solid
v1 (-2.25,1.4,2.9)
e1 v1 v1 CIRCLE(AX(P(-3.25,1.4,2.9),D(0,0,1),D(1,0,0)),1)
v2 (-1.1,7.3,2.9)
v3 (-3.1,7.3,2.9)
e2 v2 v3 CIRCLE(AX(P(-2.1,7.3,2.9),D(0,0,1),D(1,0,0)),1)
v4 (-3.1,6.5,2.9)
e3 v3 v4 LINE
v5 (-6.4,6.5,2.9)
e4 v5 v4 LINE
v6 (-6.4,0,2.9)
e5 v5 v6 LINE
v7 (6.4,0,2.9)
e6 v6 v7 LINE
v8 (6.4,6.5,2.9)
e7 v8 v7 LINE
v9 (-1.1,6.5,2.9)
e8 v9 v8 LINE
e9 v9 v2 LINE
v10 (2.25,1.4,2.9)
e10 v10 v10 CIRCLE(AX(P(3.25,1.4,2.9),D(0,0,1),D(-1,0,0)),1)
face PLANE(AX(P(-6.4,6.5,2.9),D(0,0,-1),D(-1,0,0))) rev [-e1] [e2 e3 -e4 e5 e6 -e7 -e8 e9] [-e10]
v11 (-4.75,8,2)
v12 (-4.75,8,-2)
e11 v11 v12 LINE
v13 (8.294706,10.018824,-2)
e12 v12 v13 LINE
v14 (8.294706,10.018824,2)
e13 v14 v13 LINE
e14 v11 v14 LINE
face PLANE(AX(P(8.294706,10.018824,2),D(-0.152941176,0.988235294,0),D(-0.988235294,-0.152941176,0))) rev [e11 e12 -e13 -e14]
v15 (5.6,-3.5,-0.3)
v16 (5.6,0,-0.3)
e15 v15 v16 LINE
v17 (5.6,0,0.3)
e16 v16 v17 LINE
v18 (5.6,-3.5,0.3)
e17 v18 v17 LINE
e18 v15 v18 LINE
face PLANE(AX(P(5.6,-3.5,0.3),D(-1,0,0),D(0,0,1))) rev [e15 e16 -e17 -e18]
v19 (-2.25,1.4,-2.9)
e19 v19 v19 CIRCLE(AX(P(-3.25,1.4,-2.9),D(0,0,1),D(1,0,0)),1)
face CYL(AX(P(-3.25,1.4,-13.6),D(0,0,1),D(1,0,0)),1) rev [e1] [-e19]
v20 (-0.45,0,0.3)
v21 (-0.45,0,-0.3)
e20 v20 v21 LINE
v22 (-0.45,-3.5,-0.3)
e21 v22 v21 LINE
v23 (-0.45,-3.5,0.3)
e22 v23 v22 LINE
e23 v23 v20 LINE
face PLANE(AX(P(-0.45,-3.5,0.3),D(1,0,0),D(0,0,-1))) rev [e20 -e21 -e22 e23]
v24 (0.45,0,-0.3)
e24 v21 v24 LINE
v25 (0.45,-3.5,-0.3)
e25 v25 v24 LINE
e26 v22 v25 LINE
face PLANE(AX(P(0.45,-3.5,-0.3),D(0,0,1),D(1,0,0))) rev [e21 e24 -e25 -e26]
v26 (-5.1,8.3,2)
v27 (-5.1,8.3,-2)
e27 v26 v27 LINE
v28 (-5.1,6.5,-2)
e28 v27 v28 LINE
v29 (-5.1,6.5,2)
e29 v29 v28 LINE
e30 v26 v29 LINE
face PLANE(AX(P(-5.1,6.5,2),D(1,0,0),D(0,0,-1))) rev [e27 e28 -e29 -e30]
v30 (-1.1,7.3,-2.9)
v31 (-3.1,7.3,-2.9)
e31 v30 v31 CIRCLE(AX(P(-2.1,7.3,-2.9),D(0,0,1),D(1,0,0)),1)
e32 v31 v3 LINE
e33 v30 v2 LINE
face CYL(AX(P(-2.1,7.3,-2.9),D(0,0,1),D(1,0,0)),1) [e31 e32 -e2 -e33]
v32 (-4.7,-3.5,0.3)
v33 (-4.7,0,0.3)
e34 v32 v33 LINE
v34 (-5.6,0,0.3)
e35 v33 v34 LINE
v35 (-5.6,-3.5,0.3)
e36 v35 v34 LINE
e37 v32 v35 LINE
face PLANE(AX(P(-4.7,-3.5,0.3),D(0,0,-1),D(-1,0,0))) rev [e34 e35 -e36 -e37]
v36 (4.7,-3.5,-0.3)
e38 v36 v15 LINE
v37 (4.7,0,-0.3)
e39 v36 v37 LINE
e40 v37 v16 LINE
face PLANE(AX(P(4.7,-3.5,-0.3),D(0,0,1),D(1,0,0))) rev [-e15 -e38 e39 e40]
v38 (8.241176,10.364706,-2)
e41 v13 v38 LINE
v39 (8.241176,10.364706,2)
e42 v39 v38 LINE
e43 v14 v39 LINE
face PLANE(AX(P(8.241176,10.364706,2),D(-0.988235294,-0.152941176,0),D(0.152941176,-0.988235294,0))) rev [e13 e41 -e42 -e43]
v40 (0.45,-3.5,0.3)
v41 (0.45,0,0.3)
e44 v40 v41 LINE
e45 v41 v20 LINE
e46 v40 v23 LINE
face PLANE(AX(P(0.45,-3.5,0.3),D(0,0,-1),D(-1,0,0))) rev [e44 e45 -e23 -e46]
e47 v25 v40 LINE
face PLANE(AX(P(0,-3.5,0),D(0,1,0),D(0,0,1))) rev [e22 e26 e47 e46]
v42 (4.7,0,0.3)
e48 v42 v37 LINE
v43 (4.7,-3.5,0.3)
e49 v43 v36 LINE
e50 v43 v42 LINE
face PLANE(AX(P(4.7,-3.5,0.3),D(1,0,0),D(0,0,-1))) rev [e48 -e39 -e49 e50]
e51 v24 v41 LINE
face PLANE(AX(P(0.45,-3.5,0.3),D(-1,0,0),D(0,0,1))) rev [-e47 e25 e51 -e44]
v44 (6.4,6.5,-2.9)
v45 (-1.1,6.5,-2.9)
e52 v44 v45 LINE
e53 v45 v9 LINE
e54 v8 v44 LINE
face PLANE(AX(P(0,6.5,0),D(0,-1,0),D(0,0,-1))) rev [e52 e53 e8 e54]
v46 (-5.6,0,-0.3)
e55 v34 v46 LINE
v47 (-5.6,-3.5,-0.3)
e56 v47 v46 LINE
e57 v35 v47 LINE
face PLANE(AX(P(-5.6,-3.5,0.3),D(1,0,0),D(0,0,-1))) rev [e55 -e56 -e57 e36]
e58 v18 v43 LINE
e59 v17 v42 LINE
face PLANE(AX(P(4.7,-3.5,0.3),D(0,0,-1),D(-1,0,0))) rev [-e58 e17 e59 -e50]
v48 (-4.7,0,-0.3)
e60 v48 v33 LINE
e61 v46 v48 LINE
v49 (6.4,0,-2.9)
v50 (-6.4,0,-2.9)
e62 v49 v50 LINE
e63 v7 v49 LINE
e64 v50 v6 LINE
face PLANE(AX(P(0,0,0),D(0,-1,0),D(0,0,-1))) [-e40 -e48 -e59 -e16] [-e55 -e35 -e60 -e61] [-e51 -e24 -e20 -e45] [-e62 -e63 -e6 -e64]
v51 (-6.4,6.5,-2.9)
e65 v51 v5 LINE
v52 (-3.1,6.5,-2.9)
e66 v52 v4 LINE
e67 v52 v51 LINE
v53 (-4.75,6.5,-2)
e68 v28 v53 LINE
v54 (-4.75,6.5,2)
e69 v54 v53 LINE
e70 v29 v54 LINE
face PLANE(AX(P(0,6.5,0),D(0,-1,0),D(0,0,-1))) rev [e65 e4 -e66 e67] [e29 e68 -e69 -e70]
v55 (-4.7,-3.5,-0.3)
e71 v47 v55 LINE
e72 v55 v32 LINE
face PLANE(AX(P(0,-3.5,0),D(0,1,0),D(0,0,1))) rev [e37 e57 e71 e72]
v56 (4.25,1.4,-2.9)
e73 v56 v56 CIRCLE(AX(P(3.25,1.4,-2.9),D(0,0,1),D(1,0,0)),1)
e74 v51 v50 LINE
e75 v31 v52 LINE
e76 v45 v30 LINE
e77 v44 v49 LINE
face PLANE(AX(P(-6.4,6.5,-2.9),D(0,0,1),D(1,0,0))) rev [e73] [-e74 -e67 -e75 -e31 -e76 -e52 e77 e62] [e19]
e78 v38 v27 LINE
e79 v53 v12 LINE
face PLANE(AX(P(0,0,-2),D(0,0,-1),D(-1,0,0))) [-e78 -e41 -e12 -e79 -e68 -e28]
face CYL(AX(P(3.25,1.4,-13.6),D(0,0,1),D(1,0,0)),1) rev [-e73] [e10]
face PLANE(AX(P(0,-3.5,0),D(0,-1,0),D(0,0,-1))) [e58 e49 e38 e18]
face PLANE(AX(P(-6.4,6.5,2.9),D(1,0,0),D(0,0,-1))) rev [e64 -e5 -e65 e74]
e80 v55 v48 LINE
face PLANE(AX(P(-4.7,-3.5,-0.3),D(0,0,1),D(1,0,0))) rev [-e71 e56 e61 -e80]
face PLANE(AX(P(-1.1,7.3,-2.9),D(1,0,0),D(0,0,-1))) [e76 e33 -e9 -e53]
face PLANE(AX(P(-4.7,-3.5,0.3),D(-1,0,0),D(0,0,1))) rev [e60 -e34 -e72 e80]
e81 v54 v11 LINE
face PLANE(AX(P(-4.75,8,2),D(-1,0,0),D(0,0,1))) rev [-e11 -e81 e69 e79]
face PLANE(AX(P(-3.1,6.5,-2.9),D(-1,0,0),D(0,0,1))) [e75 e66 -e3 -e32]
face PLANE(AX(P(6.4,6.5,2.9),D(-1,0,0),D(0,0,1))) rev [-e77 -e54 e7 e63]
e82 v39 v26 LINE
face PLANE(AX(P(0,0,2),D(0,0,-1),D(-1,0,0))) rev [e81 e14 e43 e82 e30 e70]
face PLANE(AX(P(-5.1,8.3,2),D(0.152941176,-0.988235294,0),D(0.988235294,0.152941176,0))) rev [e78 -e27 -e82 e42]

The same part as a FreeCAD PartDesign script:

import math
import FreeCAD as App
import Part
import Sketcher
from FreeCAD import Vector
Q = App.Units.Quantity

doc = App.newDocument("Part")
params = doc.addObject("Spreadsheet::Sheet", "Params")
for row, (alias, value) in enumerate([
    ("sketch1_width", "12.8 mm"),
    ("sketch1_height", "5.8 mm"),
    ("pad1_length", "6.5 mm"),
    ("sketch2_diameter", "2 mm"),
    ("pocket1_length", "16.5 mm"),
    ("sketch3_width", "0.9 mm"),
    ("sketch3_height", "0.6 mm"),
    ("pad2_length", "3.5 mm"),
    ("sketch4_radius", "1 mm"),
    ("sketch4_height", "0.8 mm"),
    ("pad3_length", "5.8 mm"),
    ("sketch5_height", "1.8 mm"),
    ("sketch5_height2", "1.5 mm"),
    ("sketch5_length", "13.2 mm"),
    ("sketch5_length2", "13.5 mm"),
    ("sketch5_width", "0.35 mm"),
    ("pad4_length", "4 mm"),
], start=1):
    params.set(f"A{row}", alias)
    params.set(f"B{row}", "=" + value)
    params.setAlias(f"B{row}", alias)

body = doc.addObject("PartDesign::Body", "Body")

# Sketch on XZ plane
sketch1 = body.newObject("Sketcher::SketchObject", "Sketch")
sketch1.AttachmentSupport = (doc.getObject("XZ_Plane"), [""])
sketch1.MapMode = "FlatFace"
sketch1.addGeometry([
    Part.LineSegment(Vector(-6, -3, 0), Vector(-6, 3, 0)),
    Part.LineSegment(Vector(-6, 3, 0), Vector(6, 3, 0)),
    Part.LineSegment(Vector(6, 3, 0), Vector(6, -3, 0)),
    Part.LineSegment(Vector(6, -3, 0), Vector(-6, -3, 0)),
], False)
sketch1.addConstraint([
    Sketcher.Constraint("Coincident", 0, 2, 1, 1),
    Sketcher.Constraint("Coincident", 1, 2, 2, 1),
    Sketcher.Constraint("Coincident", 2, 2, 3, 1),
    Sketcher.Constraint("Coincident", 3, 2, 0, 1),
    Sketcher.Constraint("Vertical", 0),
    Sketcher.Constraint("Horizontal", 1),
    Sketcher.Constraint("Vertical", 2),
    Sketcher.Constraint("Horizontal", 3),
    Sketcher.Constraint("Symmetric", 0, 2, 2, 2, -1, 1),
    Sketcher.Constraint("DistanceX", 1, 1, 1, 2, Q("12.8 mm")),
    Sketcher.Constraint("DistanceY", 0, 1, 0, 2, Q("5.8 mm")),
])
sketch1.setExpression("Constraints[9]", "Params.sketch1_width")
sketch1.setExpression("Constraints[10]", "Params.sketch1_height")
pad1 = body.newObject("PartDesign::Pad", "Pad")
pad1.Profile = sketch1
pad1.setExpression("Length", "Params.pad1_length")
pad1.Reversed = True

# Sketch on XY plane
sketch2 = body.newObject("Sketcher::SketchObject", "Sketch001")
sketch2.AttachmentSupport = (doc.getObject("XY_Plane"), [""])
sketch2.MapMode = "FlatFace"
sketch2.AttachmentOffset = App.Placement(Vector(0, 0, 2.9), App.Rotation())
sketch2.addGeometry([
    Part.Circle(Vector(-3.2, 1.4, 0), Vector(0, 0, 1), 1),
    Part.Circle(Vector(3.2, 1.4, 0), Vector(0, 0, 1), 1),
], False)
sketch2.addConstraint([
    Sketcher.Constraint("Equal", 0, 1),
    Sketcher.Constraint("Symmetric", 0, 3, 1, 3, -2),
    Sketcher.Constraint("Diameter", 0, Q("2 mm")),
    Sketcher.Constraint("DistanceY", -1, 1, 0, 3, Q("1.4 mm")),
    Sketcher.Constraint("DistanceX", 0, 3, 1, 3, Q("6.5 mm")),
])
sketch2.setExpression("Constraints[2]", "Params.sketch2_diameter")
pocket1 = body.newObject("PartDesign::Pocket", "Pocket")
pocket1.Profile = sketch2
pocket1.setExpression("Length", "Params.pocket1_length")

# Sketch on XZ plane
sketch3 = body.newObject("Sketcher::SketchObject", "Sketch002")
sketch3.AttachmentSupport = (doc.getObject("XZ_Plane"), [""])
sketch3.MapMode = "FlatFace"
sketch3.addGeometry([
    Part.LineSegment(Vector(-5.6, 0.3, 0), Vector(-5.6, -0.3, 0)),  # 0
    Part.LineSegment(Vector(-5.6, -0.3, 0), Vector(-4.7, -0.3, 0)),  # 1
    Part.LineSegment(Vector(-4.7, -0.3, 0), Vector(-4.7, 0.3, 0)),  # 2
    Part.LineSegment(Vector(-4.7, 0.3, 0), Vector(-5.6, 0.3, 0)),  # 3
    Part.LineSegment(Vector(-0.5, 0.3, 0), Vector(-0.5, -0.3, 0)),  # 4
    Part.LineSegment(Vector(-0.5, -0.3, 0), Vector(0.5, -0.3, 0)),  # 5
    Part.LineSegment(Vector(0.5, -0.3, 0), Vector(0.5, 0.3, 0)),  # 6
    Part.LineSegment(Vector(0.5, 0.3, 0), Vector(-0.5, 0.3, 0)),  # 7
    Part.LineSegment(Vector(4.7, 0.3, 0), Vector(4.7, -0.3, 0)),  # 8
    Part.LineSegment(Vector(4.7, -0.3, 0), Vector(5.6, -0.3, 0)),  # 9
    Part.LineSegment(Vector(5.6, -0.3, 0), Vector(5.6, 0.3, 0)),  # 10
    Part.LineSegment(Vector(5.6, 0.3, 0), Vector(4.7, 0.3, 0)),  # 11
], False)
sketch3.addConstraint([
    Sketcher.Constraint("Coincident", 0, 2, 1, 1),
    Sketcher.Constraint("Coincident", 1, 2, 2, 1),
    Sketcher.Constraint("Coincident", 2, 2, 3, 1),
    Sketcher.Constraint("Coincident", 3, 2, 0, 1),
    Sketcher.Constraint("Coincident", 4, 2, 5, 1),
    Sketcher.Constraint("Coincident", 5, 2, 6, 1),
    Sketcher.Constraint("Coincident", 6, 2, 7, 1),
    Sketcher.Constraint("Coincident", 7, 2, 4, 1),
    Sketcher.Constraint("Coincident", 8, 2, 9, 1),
    Sketcher.Constraint("Coincident", 9, 2, 10, 1),
    Sketcher.Constraint("Coincident", 10, 2, 11, 1),
    Sketcher.Constraint("Coincident", 11, 2, 8, 1),
    Sketcher.Constraint("Vertical", 0),
    Sketcher.Constraint("Horizontal", 1),
    Sketcher.Constraint("Vertical", 2),
    Sketcher.Constraint("Horizontal", 3),
    Sketcher.Constraint("Vertical", 4),
    Sketcher.Constraint("Horizontal", 5),
    Sketcher.Constraint("Vertical", 6),
    Sketcher.Constraint("Horizontal", 7),
    Sketcher.Constraint("Vertical", 8),
    Sketcher.Constraint("Horizontal", 9),
    Sketcher.Constraint("Vertical", 10),
    Sketcher.Constraint("Horizontal", 11),
    Sketcher.Constraint("Symmetric", 4, 2, 6, 2, -1, 1),
    Sketcher.Constraint("Symmetric", 2, 2, 8, 2, -1, 1),
    Sketcher.Constraint("Symmetric", 0, 2, 10, 2, -1, 1),
    Sketcher.Constraint("Horizontal", 1, 2, 4, 2),
    Sketcher.Constraint("Horizontal", 3, 2, 6, 2),
    Sketcher.Constraint("Equal", 3, 5),
    Sketcher.Constraint("DistanceX", 1, 1, 1, 2, Q("0.9 mm")),
    Sketcher.Constraint("DistanceY", 0, 2, 0, 1, Q("0.6 mm")),
    Sketcher.Constraint("DistanceX", 0, 2, -1, 1, Q("5.6 mm")),
])
sketch3.setExpression("Constraints[30]", "Params.sketch3_width")
sketch3.setExpression("Constraints[31]", "Params.sketch3_height")
pad2 = body.newObject("PartDesign::Pad", "Pad001")
pad2.Profile = sketch3
pad2.setExpression("Length", "Params.pad2_length")

# Sketch on XY plane
sketch4 = body.newObject("Sketcher::SketchObject", "Sketch003")
sketch4.AttachmentSupport = (doc.getObject("XY_Plane"), [""])
sketch4.MapMode = "FlatFace"
sketch4.AttachmentOffset = App.Placement(Vector(0, 0, 2.9), App.Rotation())
sketch4.addGeometry([
    Part.LineSegment(Vector(-3.1, 7.3, 0), Vector(-3.1, 6.5, 0)),
    Part.LineSegment(Vector(-3.1, 6.5, 0), Vector(-1.1, 6.5, 0)),
    Part.LineSegment(Vector(-1.1, 6.5, 0), Vector(-1.1, 7.3, 0)),
    Part.ArcOfCircle(Part.Circle(Vector(-2.1, 7.3, 0), Vector(0, 0, 1), 1), math.radians(0), math.radians(180)),
], False)
sketch4.addConstraint([
    Sketcher.Constraint("Coincident", 0, 2, 1, 1),
    Sketcher.Constraint("Coincident", 1, 2, 2, 1),
    Sketcher.Constraint("Tangent", 2, 2, 3, 1),
    Sketcher.Constraint("Tangent", 3, 2, 0, 1),
    Sketcher.Constraint("Vertical", 0),
    Sketcher.Constraint("Horizontal", 1),
    Sketcher.Constraint("Vertical", 2),
    Sketcher.Constraint("Radius", 3, Q("1 mm")),
    Sketcher.Constraint("DistanceY", 0, 2, 0, 1, Q("0.8 mm")),
    Sketcher.Constraint("DistanceX", 3, 3, -1, 1, Q("2.1 mm")),
    Sketcher.Constraint("DistanceY", -1, 1, 3, 3, Q("7.3 mm")),
])
sketch4.setExpression("Constraints[7]", "Params.sketch4_radius")
sketch4.setExpression("Constraints[8]", "Params.sketch4_height")
pad3 = body.newObject("PartDesign::Pad", "Pad002")
pad3.Profile = sketch4
pad3.setExpression("Length", "Params.pad3_length")
pad3.Reversed = True

# Sketch on XY plane
sketch5 = body.newObject("Sketcher::SketchObject", "Sketch004")
sketch5.AttachmentSupport = (doc.getObject("XY_Plane"), [""])
sketch5.MapMode = "FlatFace"
sketch5.addGeometry([
    Part.LineSegment(Vector(-5.1, 8.3, 0), Vector(-5.1, 6.5, 0)),  # 0
    Part.LineSegment(Vector(-5.1, 6.5, 0), Vector(-4.75, 6.5, 0)),  # 1
    Part.LineSegment(Vector(-4.75, 6.5, 0), Vector(-4.75, 8, 0)),  # 2
    Part.LineSegment(Vector(-4.75, 8, 0), Vector(8.29, 10.02, 0)),  # 3
    Part.LineSegment(Vector(8.29, 10.02, 0), Vector(8.24, 10.36, 0)),  # 4
    Part.LineSegment(Vector(8.24, 10.36, 0), Vector(-5.1, 8.3, 0)),  # 5
], False)
sketch5.addConstraint([
    Sketcher.Constraint("Coincident", 0, 2, 1, 1),
    Sketcher.Constraint("Coincident", 1, 2, 2, 1),
    Sketcher.Constraint("Coincident", 2, 2, 3, 1),
    Sketcher.Constraint("Coincident", 3, 2, 4, 1),
    Sketcher.Constraint("Coincident", 4, 2, 5, 1),
    Sketcher.Constraint("Coincident", 5, 2, 0, 1),
    Sketcher.Constraint("Vertical", 0),
    Sketcher.Constraint("Horizontal", 1),
    Sketcher.Constraint("Vertical", 2),
    Sketcher.Constraint("Perpendicular", 3, 4),
    Sketcher.Constraint("Perpendicular", 4, 5),
    Sketcher.Constraint("DistanceY", 0, 2, 0, 1, Q("1.8 mm")),
    Sketcher.Constraint("DistanceY", 2, 1, 2, 2, Q("1.5 mm")),
    Sketcher.Constraint("DistanceY", -1, 1, 2, 2, Q("8 mm")),
    Sketcher.Constraint("Distance", 3, Q("13.2 mm")),
    Sketcher.Constraint("Distance", 5, Q("13.5 mm")),
    Sketcher.Constraint("DistanceX", 1, 1, 1, 2, Q("0.35 mm")),
    Sketcher.Constraint("DistanceX", 0, 2, -1, 1, Q("5.1 mm")),
])
sketch5.setExpression("Constraints[11]", "Params.sketch5_height")
sketch5.setExpression("Constraints[12]", "Params.sketch5_height2")
sketch5.setExpression("Constraints[14]", "Params.sketch5_length")
sketch5.setExpression("Constraints[15]", "Params.sketch5_length2")
sketch5.setExpression("Constraints[16]", "Params.sketch5_width")
pad4 = body.newObject("PartDesign::Pad", "Pad003")
pad4.Profile = sketch5
pad4.setExpression("Length", "Params.pad4_length")
pad4.Midplane = True

doc.recompute()
